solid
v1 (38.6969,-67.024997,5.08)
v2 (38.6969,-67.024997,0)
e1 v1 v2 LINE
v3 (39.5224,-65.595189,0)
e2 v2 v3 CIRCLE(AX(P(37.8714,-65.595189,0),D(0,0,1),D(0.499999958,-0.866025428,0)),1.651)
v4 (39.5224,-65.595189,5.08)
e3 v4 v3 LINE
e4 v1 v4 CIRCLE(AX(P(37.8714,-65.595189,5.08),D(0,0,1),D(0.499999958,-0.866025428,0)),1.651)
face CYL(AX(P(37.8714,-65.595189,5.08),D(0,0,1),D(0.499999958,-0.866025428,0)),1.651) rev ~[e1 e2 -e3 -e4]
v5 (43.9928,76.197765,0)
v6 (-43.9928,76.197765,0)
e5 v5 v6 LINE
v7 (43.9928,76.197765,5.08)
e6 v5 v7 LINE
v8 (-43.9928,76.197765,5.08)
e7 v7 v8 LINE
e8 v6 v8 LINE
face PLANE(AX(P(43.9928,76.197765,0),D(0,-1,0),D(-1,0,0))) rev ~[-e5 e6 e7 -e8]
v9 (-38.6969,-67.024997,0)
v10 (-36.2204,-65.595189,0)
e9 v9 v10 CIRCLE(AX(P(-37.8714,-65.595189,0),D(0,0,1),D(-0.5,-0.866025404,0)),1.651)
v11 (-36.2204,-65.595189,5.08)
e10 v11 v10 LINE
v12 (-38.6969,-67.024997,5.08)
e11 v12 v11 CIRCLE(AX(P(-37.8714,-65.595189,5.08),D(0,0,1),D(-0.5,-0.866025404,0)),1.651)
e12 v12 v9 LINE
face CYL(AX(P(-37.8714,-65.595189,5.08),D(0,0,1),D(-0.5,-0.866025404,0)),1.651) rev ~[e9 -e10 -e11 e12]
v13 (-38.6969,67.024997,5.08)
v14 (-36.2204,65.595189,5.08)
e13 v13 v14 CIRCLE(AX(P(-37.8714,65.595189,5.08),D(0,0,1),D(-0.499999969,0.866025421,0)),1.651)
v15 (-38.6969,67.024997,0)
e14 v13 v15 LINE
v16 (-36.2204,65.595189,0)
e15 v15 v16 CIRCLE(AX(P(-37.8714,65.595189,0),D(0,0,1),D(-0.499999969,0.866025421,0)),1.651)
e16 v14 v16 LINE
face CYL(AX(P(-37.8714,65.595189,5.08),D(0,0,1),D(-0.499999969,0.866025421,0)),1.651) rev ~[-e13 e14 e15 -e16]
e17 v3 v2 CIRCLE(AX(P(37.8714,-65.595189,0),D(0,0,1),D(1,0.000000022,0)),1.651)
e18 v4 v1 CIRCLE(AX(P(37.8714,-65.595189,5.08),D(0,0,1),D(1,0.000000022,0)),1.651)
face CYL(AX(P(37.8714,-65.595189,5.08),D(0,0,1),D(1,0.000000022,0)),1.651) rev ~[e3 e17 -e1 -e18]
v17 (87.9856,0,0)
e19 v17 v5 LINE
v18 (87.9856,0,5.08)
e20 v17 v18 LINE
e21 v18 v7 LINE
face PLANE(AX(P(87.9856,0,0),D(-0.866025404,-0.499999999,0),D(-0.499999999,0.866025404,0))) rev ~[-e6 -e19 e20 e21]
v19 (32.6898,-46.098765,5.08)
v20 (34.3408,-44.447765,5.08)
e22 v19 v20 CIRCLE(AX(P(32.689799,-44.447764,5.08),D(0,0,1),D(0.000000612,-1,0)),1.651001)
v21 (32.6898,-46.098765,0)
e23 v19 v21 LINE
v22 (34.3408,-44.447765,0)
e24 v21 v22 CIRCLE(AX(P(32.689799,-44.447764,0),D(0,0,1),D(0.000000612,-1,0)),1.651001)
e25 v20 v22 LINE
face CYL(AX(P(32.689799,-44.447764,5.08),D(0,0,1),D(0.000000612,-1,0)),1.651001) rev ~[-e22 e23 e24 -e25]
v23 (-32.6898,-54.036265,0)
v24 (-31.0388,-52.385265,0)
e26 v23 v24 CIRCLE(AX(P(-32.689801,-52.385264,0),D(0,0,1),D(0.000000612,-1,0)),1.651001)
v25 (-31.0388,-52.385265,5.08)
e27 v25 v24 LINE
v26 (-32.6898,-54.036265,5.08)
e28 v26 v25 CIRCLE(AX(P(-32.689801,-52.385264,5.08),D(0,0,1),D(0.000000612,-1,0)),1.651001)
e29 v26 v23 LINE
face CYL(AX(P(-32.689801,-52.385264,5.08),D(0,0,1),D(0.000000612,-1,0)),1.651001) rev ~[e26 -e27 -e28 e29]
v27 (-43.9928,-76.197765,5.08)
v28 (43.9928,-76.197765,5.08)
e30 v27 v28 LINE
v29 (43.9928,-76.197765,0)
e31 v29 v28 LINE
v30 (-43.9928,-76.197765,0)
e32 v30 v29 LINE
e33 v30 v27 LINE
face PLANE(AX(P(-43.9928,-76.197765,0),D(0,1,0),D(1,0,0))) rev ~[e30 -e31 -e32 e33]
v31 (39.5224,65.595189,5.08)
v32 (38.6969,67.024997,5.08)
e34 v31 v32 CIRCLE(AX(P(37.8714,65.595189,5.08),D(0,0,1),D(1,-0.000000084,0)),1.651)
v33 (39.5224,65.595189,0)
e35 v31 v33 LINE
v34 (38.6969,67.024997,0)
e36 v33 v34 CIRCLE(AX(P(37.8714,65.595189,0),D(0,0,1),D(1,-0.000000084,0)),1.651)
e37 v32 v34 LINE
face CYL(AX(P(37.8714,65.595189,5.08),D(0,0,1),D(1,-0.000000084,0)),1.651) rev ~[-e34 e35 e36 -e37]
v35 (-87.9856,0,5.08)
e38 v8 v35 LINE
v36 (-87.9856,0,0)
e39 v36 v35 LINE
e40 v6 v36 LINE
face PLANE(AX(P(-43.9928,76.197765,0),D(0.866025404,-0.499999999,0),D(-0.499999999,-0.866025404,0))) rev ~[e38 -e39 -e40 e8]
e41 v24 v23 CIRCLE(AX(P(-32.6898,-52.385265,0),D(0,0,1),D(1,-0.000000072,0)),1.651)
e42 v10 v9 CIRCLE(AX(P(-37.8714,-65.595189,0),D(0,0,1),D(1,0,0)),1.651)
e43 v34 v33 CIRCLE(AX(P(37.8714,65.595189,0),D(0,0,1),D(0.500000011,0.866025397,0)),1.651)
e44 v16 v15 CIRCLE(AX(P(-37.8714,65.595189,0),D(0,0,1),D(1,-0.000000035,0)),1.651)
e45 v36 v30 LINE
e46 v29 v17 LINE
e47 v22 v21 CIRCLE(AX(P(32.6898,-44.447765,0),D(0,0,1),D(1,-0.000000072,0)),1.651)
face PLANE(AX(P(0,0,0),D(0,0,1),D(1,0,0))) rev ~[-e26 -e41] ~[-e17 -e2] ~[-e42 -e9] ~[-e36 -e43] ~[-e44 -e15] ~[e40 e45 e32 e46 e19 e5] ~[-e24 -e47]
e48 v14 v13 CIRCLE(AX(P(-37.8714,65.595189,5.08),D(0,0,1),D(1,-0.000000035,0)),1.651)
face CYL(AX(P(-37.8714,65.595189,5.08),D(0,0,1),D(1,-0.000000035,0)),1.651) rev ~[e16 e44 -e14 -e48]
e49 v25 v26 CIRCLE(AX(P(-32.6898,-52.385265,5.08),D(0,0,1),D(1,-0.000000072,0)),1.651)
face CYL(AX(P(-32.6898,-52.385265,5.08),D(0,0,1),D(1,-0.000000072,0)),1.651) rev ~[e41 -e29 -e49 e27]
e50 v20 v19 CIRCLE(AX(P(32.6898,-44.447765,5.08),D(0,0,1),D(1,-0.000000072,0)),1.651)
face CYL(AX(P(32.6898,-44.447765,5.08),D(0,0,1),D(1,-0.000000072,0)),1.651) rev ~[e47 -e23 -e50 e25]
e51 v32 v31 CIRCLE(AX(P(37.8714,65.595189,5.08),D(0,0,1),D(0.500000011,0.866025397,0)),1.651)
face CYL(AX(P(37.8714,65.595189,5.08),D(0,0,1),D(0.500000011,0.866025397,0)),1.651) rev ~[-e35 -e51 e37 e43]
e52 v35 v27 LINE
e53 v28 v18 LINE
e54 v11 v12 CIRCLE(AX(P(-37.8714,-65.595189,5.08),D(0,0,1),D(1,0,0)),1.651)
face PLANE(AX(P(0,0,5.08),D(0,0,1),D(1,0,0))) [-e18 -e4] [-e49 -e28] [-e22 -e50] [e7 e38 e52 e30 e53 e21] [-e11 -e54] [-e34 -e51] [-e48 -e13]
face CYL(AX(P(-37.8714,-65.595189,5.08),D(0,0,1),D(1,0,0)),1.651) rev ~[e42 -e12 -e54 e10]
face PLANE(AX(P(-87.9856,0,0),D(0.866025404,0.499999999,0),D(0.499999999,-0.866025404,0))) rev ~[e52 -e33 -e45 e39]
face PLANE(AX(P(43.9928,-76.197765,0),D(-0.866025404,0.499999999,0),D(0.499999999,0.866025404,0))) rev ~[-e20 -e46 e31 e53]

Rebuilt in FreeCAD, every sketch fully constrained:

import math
import FreeCAD as App
import Part
import Sketcher
from FreeCAD import Vector
Q = App.Units.Quantity


def add_polygon(sketch, points):
    """Adds a closed chain of lines whose ends are joined by coincident constraints."""
    first, n = sketch.GeometryCount, len(points)
    for a, b in zip(points, points[1:] + points[:1]):
        sketch.addGeometry(Part.LineSegment(App.Vector(*a, 0), App.Vector(*b, 0)), False)
    for i in range(n):
        sketch.addConstraint(Sketcher.Constraint("Coincident", first + i, 2, first + (i + 1) % n, 1))

doc = App.newDocument("Part")
body = doc.addObject("PartDesign::Body", "Body")

# Sketch on XY plane
sketch1 = body.newObject("Sketcher::SketchObject", "Sketch")
sketch1.AttachmentSupport = (doc.getObject("XY_Plane"), [""])
sketch1.MapMode = "FlatFace"
add_polygon(sketch1, [(43.9928, 76.197765), (-43.9928, 76.197765), (-87.9856, 0), (-43.9928, -76.197765), (43.9928, -76.197765), (87.9856, 0)])  # lines 0-5
sketch1.addConstraint([
    Sketcher.Constraint("Horizontal", 0),
    Sketcher.Constraint("Horizontal", 3),
    Sketcher.Constraint("Symmetric", 0, 2, 3, 2, -1, 1),
    Sketcher.Constraint("Symmetric", 1, 2, 4, 2, -1, 1),
    Sketcher.Constraint("PointOnObject", 1, 2, -1),
    Sketcher.Constraint("Parallel", 2, 5),
    Sketcher.Constraint("Vertical", 0, 2, 2, 2),
    Sketcher.Constraint("Angle", 1, Q("-120 deg")),
    Sketcher.Constraint("DistanceX", 0, 2, 0, 1, Q("3.464 in")),
    Sketcher.Constraint("Distance", 1, Q("3.464 in")),
])
pad1 = body.newObject("PartDesign::Pad", "Pad")
pad1.Profile = sketch1
pad1.Length = Q("0.2 in")

# Sketch on XY plane
sketch2 = body.newObject("Sketcher::SketchObject", "Sketch001")
sketch2.AttachmentSupport = (doc.getObject("XY_Plane"), [""])
sketch2.MapMode = "FlatFace"
sketch2.AttachmentOffset = App.Placement(Vector(0, 0, 0.2 * 25.4), App.Rotation())
sketch2.addGeometry([
    Part.ArcOfCircle(Part.Circle(Vector(-37.8714, 65.595189, 0), Vector(0, 0, 1), 1.651), math.radians(119.999998), math.radians(360)),  # 0
    Part.ArcOfCircle(Part.Circle(Vector(-37.8714, 65.595189, 0), Vector(0, 0, 1), 1.651), math.radians(-0.000002), math.radians(120)),  # 1
    Part.ArcOfCircle(Part.Circle(Vector(37.8714, 65.595189, 0), Vector(0, 0, 1), 1.651), math.radians(59.999999), math.radians(359.999999)),  # 2
    Part.ArcOfCircle(Part.Circle(Vector(37.8714, 65.595189, 0), Vector(0, 0, 1), 1.651), math.radians(-0.000005), math.radians(60.000003)),  # 3
    Part.ArcOfCircle(Part.Circle(Vector(37.8714, -65.595189, 0), Vector(0, 0, 1), 1.651), math.radians(-60.000003), math.radians(0.000005)),  # 4
    Part.ArcOfCircle(Part.Circle(Vector(37.8714, -65.595189, 0), Vector(0, 0, 1), 1.651), math.radians(0.000001), math.radians(300.000001)),  # 5
    Part.ArcOfCircle(Part.Circle(Vector(-37.8714, -65.595189, 0), Vector(0, 0, 1), 1.651), math.radians(-120), math.radians(0.000002)),  # 6
    Part.ArcOfCircle(Part.Circle(Vector(-37.8714, -65.595189, 0), Vector(0, 0, 1), 1.651), math.radians(0), math.radians(240.000002)),  # 7
], False)
sketch2.addConstraint([
    Sketcher.Constraint("Tangent", 0, 1, 1, 2),
    Sketcher.Constraint("Coincident", 1, 1, 0, 2),
    Sketcher.Constraint("Tangent", 2, 1, 3, 2),
    Sketcher.Constraint("Coincident", 3, 1, 2, 2),
    Sketcher.Constraint("Tangent", 4, 1, 5, 2),
    Sketcher.Constraint("Coincident", 5, 1, 4, 2),
    Sketcher.Constraint("Tangent", 6, 1, 7, 2),
    Sketcher.Constraint("Coincident", 7, 1, 6, 2),
    Sketcher.Constraint("Equal", 1, 2),
    Sketcher.Constraint("Equal", 3, 4),
    Sketcher.Constraint("Equal", 5, 6),
    Sketcher.Constraint("Symmetric", 0, 3, 4, 3, -1, 1),
    Sketcher.Constraint("Symmetric", 2, 3, 6, 3, -1, 1),
    Sketcher.Constraint("Symmetric", 0, 3, 2, 3, -2),
    Sketcher.Constraint("Horizontal", 3, 3, 1, 1),
    Sketcher.Constraint("Horizontal", 0, 1, 2, 1),
    Sketcher.Constraint("Horizontal", 1, 1, 3, 1),
    Sketcher.Constraint("Horizontal", 7, 3, 5, 1),
    Sketcher.Constraint("Horizontal", 4, 1, 6, 1),
    Sketcher.Constraint("Horizontal", 5, 1, 7, 1),
    Sketcher.Constraint("Vertical", 2, 1, 4, 1),
    Sketcher.Constraint("Radius", 0, Q("0.065 in")),
    Sketcher.Constraint("DistanceX", 0, 3, -1, 1, Q("1.491 in")),
    Sketcher.Constraint("DistanceX", 6, 1, 4, 1, Q("3.047 in")),
    Sketcher.Constraint("DistanceY", -1, 1, 0, 3, 65.595189),
])
pocket1 = body.newObject("PartDesign::Pocket", "Pocket")
pocket1.Profile = sketch2
pocket1.Length = Q("1 in")

# Sketch on XY plane
sketch3 = body.newObject("Sketcher::SketchObject", "Sketch002")
sketch3.AttachmentSupport = (doc.getObject("XY_Plane"), [""])
sketch3.MapMode = "FlatFace"
sketch3.AttachmentOffset = App.Placement(Vector(0, 0, 0.2 * 25.4), App.Rotation())
sketch3.addGeometry([
    Part.ArcOfCircle(Part.Circle(Vector(32.689799, -44.447764, 0), Vector(0, 0, 1), 1.651001), math.radians(-89.999965), math.radians(-0.000035)),
    Part.ArcOfCircle(Part.Circle(Vector(32.6898, -44.447765, 0), Vector(0, 0, 1), 1.651), math.radians(-0.000004), math.radians(270.000004)),
], False)
sketch3.addConstraint([
    Sketcher.Constraint("Tangent", 0, 1, 1, 2),
    Sketcher.Constraint("Coincident", 1, 1, 0, 2),
    Sketcher.Constraint("Horizontal", 0, 3, 1, 1),
    Sketcher.Constraint("Vertical", 1, 3, 0, 1),
    Sketcher.Constraint("Radius", 0, Q("0.065 in")),
    Sketcher.Constraint("DistanceX", -1, 1, 0, 3, Q("1.287 in")),
    Sketcher.Constraint("DistanceY", 0, 3, -1, 1, 44.447764),
])
pocket2 = body.newObject("PartDesign::Pocket", "Pocket001")
pocket2.Profile = sketch3
pocket2.Length = Q("1 in")

# Sketch on XY plane
sketch4 = body.newObject("Sketcher::SketchObject", "Sketch003")
sketch4.AttachmentSupport = (doc.getObject("XY_Plane"), [""])
sketch4.MapMode = "FlatFace"
sketch4.AttachmentOffset = App.Placement(Vector(0, 0, 0.2 * 25.4), App.Rotation())
sketch4.addGeometry([
    Part.ArcOfCircle(Part.Circle(Vector(-32.6898, -52.385265, 0), Vector(0, 0, 1), 1.651), math.radians(-0.000004), math.radians(270.000004)),
    Part.ArcOfCircle(Part.Circle(Vector(-32.689801, -52.385264, 0), Vector(0, 0, 1), 1.651001), math.radians(-89.999965), math.radians(-0.000035)),
], False)
sketch4.addConstraint([
    Sketcher.Constraint("Tangent", 0, 1, 1, 2),
    Sketcher.Constraint("Coincident", 1, 1, 0, 2),
    Sketcher.Constraint("Horizontal", 1, 3, 0, 1),
    Sketcher.Constraint("Vertical", 0, 3, 1, 1),
    Sketcher.Constraint("Radius", 0, Q("0.065 in")),
    Sketcher.Constraint("DistanceX", 0, 3, -1, 1, Q("1.287 in")),
    Sketcher.Constraint("DistanceY", 0, 3, -1, 1, 52.385265),
])
pocket3 = body.newObject("PartDesign::Pocket", "Pocket002")
pocket3.Profile = sketch4
pocket3.Length = Q("1 in")

doc.recompute()
